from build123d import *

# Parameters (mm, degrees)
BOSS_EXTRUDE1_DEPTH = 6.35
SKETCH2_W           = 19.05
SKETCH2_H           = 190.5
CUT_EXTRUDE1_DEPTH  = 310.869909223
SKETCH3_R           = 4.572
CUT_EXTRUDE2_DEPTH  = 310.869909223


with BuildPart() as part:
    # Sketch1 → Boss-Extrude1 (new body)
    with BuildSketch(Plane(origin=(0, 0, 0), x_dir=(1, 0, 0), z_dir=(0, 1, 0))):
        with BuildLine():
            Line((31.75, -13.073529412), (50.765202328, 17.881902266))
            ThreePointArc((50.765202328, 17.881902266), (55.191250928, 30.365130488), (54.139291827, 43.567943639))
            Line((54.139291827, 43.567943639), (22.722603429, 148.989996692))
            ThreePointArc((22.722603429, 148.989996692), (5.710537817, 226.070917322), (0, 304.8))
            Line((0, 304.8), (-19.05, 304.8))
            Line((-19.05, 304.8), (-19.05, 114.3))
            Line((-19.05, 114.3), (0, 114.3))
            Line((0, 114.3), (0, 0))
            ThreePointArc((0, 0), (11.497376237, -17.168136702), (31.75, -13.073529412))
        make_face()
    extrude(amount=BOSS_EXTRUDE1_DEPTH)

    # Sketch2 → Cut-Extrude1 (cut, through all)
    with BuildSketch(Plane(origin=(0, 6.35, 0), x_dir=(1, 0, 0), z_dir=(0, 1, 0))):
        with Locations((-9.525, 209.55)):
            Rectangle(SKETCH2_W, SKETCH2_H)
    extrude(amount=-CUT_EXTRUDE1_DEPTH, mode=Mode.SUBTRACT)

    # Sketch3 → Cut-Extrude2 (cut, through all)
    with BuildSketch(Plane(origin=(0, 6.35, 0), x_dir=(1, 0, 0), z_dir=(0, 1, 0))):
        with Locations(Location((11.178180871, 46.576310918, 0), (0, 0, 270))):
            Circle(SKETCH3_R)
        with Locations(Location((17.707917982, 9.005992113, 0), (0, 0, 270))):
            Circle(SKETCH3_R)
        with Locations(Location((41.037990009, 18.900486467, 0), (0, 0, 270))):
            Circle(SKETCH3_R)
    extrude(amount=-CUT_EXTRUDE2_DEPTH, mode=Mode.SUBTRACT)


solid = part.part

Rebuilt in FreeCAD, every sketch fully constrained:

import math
import FreeCAD as App
import Part
import Sketcher
from FreeCAD import Vector
Q = App.Units.Quantity

doc = App.newDocument("Part")
params = doc.addObject("Spreadsheet::Sheet", "Params")
for row, (alias, value) in enumerate([
    ("sketch1_radius", "1.25 in"),
    ("sketch1_height", "7.5 in"),
    ("sketch1_height2", "4.5 in"),
    ("sketch1_width", "0.75 in"),
    ("pad1_length", "0.25 in"),
    ("sketch2_height", "7.5 in"),
    ("sketch2_width", "0.75 in"),
    ("sketch3_diameter", "0.36 in"),
], start=1):
    params.set(f"A{row}", alias)
    params.set(f"B{row}", "=" + value)
    params.setAlias(f"B{row}", alias)

body = doc.addObject("PartDesign::Body", "Body")

# Sketch on XZ plane
sketch1 = body.newObject("Sketcher::SketchObject", "Sketch")
sketch1.AttachmentSupport = (doc.getObject("XZ_Plane"), [""])
sketch1.MapMode = "FlatFace"
sketch1.addGeometry([
    Part.LineSegment(Vector(32, 13, 0), Vector(51, -18, 0)),  # 0
    Part.ArcOfCircle(Part.Circle(Vector(24, -35, 0), Vector(0, 0, 1), 32), math.radians(-17), math.radians(32)),  # 1
    Part.LineSegment(Vector(54, -44, 0), Vector(23, -149, 0)),  # 2
    Part.ArcOfCircle(Part.Circle(Vector(546, -305, 0), Vector(0, 0, 1), 546), math.radians(163.41), math.radians(180)),  # 3
    Part.LineSegment(Vector(0, -305, 0), Vector(-19, -305, 0)),  # 4
    Part.LineSegment(Vector(-19, -305, 0), Vector(-19, -114, 0)),  # 5
    Part.LineSegment(Vector(-19, -114, 0), Vector(0, -114, 0)),  # 6
    Part.LineSegment(Vector(0, -114, 0), Vector(0, 0, 0)),  # 7
    Part.ArcOfCircle(Part.Circle(Vector(19, 0, 0), Vector(0, 0, 1), 19), math.radians(45), math.radians(180)),  # 8
], False)
sketch1.addConstraint([
    Sketcher.Constraint("Tangent", 0, 2, 1, 2),
    Sketcher.Constraint("Tangent", 1, 1, 2, 1),
    Sketcher.Constraint("Tangent", 2, 2, 3, 1),
    Sketcher.Constraint("Coincident", 3, 2, 4, 1),
    Sketcher.Constraint("Coincident", 4, 2, 5, 1),
    Sketcher.Constraint("Coincident", 5, 2, 6, 1),
    Sketcher.Constraint("Coincident", 6, 2, 7, 1),
    Sketcher.Constraint("Tangent", 7, 2, 8, 2),
    Sketcher.Constraint("Coincident", 8, 1, 0, 1),
    Sketcher.Constraint("Horizontal", 4),
    Sketcher.Constraint("Vertical", 5),
    Sketcher.Constraint("Horizontal", 6),
    Sketcher.Constraint("Vertical", 7),
    Sketcher.Constraint("Coincident", 7, 2, -1, 1),
    Sketcher.Constraint("PointOnObject", 3, 2, -2),
    Sketcher.Constraint("Radius", 1, Q("1.25 in")),
    Sketcher.Constraint("DistanceY", 5, 1, 5, 2, Q("7.5 in")),
    Sketcher.Constraint("DistanceY", 7, 1, 7, 2, Q("4.5 in")),
    Sketcher.Constraint("DistanceY", 3, 3, -1, 1, Q("12 in")),
    Sketcher.Constraint("DistanceX", 4, 2, 4, 1, Q("0.75 in")),
    Sketcher.Constraint("DistanceX", -1, 1, 8, 1, Q("1.25 in")),
    Sketcher.Constraint("Radius", 3, Q("545.559709 mm")),
    Sketcher.Constraint("Radius", 8, Q("18.566609 mm")),
    Sketcher.Constraint("DistanceX", 2, 2, 0, 2, Q("28.042599 mm")),
    Sketcher.Constraint("Distance", 0, Q("36.329281 mm")),
])
sketch1.setExpression("Constraints[15]", "Params.sketch1_radius")
sketch1.setExpression("Constraints[16]", "Params.sketch1_height")
sketch1.setExpression("Constraints[17]", "Params.sketch1_height2")
sketch1.setExpression("Constraints[19]", "Params.sketch1_width")
pad1 = body.newObject("PartDesign::Pad", "Pad")
pad1.Profile = sketch1
pad1.setExpression("Length", "Params.pad1_length")
pad1.Reversed = True

# Sketch on XZ plane
sketch2 = body.newObject("Sketcher::SketchObject", "Sketch001")
sketch2.AttachmentSupport = (doc.getObject("XZ_Plane"), [""])
sketch2.MapMode = "FlatFace"
sketch2.AttachmentOffset = App.Placement(Vector(0, 0, -0.25 * 25.4), App.Rotation())
sketch2.addGeometry([
    Part.LineSegment(Vector(-19, -305, 0), Vector(-19, -114, 0)),
    Part.LineSegment(Vector(-19, -114, 0), Vector(0, -114, 0)),
    Part.LineSegment(Vector(0, -114, 0), Vector(0, -305, 0)),
    Part.LineSegment(Vector(0, -305, 0), Vector(-19, -305, 0)),
], False)
sketch2.addConstraint([
    Sketcher.Constraint("Coincident", 0, 2, 1, 1),
    Sketcher.Constraint("Coincident", 1, 2, 2, 1),
    Sketcher.Constraint("Coincident", 2, 2, 3, 1),
    Sketcher.Constraint("Coincident", 3, 2, 0, 1),
    Sketcher.Constraint("Vertical", 0),
    Sketcher.Constraint("Horizontal", 1),
    Sketcher.Constraint("Vertical", 2),
    Sketcher.Constraint("Horizontal", 3),
    Sketcher.Constraint("PointOnObject", 1, 2, -2),
    Sketcher.Constraint("DistanceY", 0, 1, 0, 2, Q("7.5 in")),
    Sketcher.Constraint("DistanceY", 2, 2, -1, 1, Q("12 in")),
    Sketcher.Constraint("DistanceX", 1, 1, 1, 2, Q("0.75 in")),
])
sketch2.setExpression("Constraints[9]", "Params.sketch2_height")
sketch2.setExpression("Constraints[11]", "Params.sketch2_width")
pocket1 = body.newObject("PartDesign::Pocket", "Pocket")
pocket1.Profile = sketch2
pocket1.Type = "ThroughAll"
pocket1.Reversed = True

# Sketch on XZ plane
sketch3 = body.newObject("Sketcher::SketchObject", "Sketch002")
sketch3.AttachmentSupport = (doc.getObject("XZ_Plane"), [""])
sketch3.MapMode = "FlatFace"
sketch3.AttachmentOffset = App.Placement(Vector(0, 0, -0.25 * 25.4), App.Rotation())
sketch3.addGeometry([
    Part.Circle(Vector(11.2, -46.6, 0), Vector(0, 0, 1), 4.6),
    Part.Circle(Vector(17.7, -9, 0), Vector(0, 0, 1), 4.6),
    Part.Circle(Vector(41, -18.9, 0), Vector(0, 0, 1), 4.6),
], False)
sketch3.addConstraint([
    Sketcher.Constraint("Equal", 0, 1),
    Sketcher.Constraint("Equal", 1, 2),
    Sketcher.Constraint("Diameter", 0, Q("0.36 in")),
    Sketcher.Constraint("DistanceX", -1, 1, 0, 3, Q("11.178181 mm")),
    Sketcher.Constraint("DistanceY", 0, 3, -1, 1, Q("46.576311 mm")),
    Sketcher.Constraint("DistanceX", -1, 1, 2, 3, Q("41.03799 mm")),
    Sketcher.Constraint("DistanceY", 0, 3, 1, 3, Q("37.570319 mm")),
    Sketcher.Constraint("DistanceX", -1, 1, 1, 3, Q("17.707918 mm")),
    Sketcher.Constraint("DistanceY", 2, 3, -1, 1, Q("18.900486 mm")),
])
sketch3.setExpression("Constraints[2]", "Params.sketch3_diameter")
pocket2 = body.newObject("PartDesign::Pocket", "Pocket001")
pocket2.Profile = sketch3
pocket2.Type = "ThroughAll"
pocket2.Reversed = True

doc.recompute()
